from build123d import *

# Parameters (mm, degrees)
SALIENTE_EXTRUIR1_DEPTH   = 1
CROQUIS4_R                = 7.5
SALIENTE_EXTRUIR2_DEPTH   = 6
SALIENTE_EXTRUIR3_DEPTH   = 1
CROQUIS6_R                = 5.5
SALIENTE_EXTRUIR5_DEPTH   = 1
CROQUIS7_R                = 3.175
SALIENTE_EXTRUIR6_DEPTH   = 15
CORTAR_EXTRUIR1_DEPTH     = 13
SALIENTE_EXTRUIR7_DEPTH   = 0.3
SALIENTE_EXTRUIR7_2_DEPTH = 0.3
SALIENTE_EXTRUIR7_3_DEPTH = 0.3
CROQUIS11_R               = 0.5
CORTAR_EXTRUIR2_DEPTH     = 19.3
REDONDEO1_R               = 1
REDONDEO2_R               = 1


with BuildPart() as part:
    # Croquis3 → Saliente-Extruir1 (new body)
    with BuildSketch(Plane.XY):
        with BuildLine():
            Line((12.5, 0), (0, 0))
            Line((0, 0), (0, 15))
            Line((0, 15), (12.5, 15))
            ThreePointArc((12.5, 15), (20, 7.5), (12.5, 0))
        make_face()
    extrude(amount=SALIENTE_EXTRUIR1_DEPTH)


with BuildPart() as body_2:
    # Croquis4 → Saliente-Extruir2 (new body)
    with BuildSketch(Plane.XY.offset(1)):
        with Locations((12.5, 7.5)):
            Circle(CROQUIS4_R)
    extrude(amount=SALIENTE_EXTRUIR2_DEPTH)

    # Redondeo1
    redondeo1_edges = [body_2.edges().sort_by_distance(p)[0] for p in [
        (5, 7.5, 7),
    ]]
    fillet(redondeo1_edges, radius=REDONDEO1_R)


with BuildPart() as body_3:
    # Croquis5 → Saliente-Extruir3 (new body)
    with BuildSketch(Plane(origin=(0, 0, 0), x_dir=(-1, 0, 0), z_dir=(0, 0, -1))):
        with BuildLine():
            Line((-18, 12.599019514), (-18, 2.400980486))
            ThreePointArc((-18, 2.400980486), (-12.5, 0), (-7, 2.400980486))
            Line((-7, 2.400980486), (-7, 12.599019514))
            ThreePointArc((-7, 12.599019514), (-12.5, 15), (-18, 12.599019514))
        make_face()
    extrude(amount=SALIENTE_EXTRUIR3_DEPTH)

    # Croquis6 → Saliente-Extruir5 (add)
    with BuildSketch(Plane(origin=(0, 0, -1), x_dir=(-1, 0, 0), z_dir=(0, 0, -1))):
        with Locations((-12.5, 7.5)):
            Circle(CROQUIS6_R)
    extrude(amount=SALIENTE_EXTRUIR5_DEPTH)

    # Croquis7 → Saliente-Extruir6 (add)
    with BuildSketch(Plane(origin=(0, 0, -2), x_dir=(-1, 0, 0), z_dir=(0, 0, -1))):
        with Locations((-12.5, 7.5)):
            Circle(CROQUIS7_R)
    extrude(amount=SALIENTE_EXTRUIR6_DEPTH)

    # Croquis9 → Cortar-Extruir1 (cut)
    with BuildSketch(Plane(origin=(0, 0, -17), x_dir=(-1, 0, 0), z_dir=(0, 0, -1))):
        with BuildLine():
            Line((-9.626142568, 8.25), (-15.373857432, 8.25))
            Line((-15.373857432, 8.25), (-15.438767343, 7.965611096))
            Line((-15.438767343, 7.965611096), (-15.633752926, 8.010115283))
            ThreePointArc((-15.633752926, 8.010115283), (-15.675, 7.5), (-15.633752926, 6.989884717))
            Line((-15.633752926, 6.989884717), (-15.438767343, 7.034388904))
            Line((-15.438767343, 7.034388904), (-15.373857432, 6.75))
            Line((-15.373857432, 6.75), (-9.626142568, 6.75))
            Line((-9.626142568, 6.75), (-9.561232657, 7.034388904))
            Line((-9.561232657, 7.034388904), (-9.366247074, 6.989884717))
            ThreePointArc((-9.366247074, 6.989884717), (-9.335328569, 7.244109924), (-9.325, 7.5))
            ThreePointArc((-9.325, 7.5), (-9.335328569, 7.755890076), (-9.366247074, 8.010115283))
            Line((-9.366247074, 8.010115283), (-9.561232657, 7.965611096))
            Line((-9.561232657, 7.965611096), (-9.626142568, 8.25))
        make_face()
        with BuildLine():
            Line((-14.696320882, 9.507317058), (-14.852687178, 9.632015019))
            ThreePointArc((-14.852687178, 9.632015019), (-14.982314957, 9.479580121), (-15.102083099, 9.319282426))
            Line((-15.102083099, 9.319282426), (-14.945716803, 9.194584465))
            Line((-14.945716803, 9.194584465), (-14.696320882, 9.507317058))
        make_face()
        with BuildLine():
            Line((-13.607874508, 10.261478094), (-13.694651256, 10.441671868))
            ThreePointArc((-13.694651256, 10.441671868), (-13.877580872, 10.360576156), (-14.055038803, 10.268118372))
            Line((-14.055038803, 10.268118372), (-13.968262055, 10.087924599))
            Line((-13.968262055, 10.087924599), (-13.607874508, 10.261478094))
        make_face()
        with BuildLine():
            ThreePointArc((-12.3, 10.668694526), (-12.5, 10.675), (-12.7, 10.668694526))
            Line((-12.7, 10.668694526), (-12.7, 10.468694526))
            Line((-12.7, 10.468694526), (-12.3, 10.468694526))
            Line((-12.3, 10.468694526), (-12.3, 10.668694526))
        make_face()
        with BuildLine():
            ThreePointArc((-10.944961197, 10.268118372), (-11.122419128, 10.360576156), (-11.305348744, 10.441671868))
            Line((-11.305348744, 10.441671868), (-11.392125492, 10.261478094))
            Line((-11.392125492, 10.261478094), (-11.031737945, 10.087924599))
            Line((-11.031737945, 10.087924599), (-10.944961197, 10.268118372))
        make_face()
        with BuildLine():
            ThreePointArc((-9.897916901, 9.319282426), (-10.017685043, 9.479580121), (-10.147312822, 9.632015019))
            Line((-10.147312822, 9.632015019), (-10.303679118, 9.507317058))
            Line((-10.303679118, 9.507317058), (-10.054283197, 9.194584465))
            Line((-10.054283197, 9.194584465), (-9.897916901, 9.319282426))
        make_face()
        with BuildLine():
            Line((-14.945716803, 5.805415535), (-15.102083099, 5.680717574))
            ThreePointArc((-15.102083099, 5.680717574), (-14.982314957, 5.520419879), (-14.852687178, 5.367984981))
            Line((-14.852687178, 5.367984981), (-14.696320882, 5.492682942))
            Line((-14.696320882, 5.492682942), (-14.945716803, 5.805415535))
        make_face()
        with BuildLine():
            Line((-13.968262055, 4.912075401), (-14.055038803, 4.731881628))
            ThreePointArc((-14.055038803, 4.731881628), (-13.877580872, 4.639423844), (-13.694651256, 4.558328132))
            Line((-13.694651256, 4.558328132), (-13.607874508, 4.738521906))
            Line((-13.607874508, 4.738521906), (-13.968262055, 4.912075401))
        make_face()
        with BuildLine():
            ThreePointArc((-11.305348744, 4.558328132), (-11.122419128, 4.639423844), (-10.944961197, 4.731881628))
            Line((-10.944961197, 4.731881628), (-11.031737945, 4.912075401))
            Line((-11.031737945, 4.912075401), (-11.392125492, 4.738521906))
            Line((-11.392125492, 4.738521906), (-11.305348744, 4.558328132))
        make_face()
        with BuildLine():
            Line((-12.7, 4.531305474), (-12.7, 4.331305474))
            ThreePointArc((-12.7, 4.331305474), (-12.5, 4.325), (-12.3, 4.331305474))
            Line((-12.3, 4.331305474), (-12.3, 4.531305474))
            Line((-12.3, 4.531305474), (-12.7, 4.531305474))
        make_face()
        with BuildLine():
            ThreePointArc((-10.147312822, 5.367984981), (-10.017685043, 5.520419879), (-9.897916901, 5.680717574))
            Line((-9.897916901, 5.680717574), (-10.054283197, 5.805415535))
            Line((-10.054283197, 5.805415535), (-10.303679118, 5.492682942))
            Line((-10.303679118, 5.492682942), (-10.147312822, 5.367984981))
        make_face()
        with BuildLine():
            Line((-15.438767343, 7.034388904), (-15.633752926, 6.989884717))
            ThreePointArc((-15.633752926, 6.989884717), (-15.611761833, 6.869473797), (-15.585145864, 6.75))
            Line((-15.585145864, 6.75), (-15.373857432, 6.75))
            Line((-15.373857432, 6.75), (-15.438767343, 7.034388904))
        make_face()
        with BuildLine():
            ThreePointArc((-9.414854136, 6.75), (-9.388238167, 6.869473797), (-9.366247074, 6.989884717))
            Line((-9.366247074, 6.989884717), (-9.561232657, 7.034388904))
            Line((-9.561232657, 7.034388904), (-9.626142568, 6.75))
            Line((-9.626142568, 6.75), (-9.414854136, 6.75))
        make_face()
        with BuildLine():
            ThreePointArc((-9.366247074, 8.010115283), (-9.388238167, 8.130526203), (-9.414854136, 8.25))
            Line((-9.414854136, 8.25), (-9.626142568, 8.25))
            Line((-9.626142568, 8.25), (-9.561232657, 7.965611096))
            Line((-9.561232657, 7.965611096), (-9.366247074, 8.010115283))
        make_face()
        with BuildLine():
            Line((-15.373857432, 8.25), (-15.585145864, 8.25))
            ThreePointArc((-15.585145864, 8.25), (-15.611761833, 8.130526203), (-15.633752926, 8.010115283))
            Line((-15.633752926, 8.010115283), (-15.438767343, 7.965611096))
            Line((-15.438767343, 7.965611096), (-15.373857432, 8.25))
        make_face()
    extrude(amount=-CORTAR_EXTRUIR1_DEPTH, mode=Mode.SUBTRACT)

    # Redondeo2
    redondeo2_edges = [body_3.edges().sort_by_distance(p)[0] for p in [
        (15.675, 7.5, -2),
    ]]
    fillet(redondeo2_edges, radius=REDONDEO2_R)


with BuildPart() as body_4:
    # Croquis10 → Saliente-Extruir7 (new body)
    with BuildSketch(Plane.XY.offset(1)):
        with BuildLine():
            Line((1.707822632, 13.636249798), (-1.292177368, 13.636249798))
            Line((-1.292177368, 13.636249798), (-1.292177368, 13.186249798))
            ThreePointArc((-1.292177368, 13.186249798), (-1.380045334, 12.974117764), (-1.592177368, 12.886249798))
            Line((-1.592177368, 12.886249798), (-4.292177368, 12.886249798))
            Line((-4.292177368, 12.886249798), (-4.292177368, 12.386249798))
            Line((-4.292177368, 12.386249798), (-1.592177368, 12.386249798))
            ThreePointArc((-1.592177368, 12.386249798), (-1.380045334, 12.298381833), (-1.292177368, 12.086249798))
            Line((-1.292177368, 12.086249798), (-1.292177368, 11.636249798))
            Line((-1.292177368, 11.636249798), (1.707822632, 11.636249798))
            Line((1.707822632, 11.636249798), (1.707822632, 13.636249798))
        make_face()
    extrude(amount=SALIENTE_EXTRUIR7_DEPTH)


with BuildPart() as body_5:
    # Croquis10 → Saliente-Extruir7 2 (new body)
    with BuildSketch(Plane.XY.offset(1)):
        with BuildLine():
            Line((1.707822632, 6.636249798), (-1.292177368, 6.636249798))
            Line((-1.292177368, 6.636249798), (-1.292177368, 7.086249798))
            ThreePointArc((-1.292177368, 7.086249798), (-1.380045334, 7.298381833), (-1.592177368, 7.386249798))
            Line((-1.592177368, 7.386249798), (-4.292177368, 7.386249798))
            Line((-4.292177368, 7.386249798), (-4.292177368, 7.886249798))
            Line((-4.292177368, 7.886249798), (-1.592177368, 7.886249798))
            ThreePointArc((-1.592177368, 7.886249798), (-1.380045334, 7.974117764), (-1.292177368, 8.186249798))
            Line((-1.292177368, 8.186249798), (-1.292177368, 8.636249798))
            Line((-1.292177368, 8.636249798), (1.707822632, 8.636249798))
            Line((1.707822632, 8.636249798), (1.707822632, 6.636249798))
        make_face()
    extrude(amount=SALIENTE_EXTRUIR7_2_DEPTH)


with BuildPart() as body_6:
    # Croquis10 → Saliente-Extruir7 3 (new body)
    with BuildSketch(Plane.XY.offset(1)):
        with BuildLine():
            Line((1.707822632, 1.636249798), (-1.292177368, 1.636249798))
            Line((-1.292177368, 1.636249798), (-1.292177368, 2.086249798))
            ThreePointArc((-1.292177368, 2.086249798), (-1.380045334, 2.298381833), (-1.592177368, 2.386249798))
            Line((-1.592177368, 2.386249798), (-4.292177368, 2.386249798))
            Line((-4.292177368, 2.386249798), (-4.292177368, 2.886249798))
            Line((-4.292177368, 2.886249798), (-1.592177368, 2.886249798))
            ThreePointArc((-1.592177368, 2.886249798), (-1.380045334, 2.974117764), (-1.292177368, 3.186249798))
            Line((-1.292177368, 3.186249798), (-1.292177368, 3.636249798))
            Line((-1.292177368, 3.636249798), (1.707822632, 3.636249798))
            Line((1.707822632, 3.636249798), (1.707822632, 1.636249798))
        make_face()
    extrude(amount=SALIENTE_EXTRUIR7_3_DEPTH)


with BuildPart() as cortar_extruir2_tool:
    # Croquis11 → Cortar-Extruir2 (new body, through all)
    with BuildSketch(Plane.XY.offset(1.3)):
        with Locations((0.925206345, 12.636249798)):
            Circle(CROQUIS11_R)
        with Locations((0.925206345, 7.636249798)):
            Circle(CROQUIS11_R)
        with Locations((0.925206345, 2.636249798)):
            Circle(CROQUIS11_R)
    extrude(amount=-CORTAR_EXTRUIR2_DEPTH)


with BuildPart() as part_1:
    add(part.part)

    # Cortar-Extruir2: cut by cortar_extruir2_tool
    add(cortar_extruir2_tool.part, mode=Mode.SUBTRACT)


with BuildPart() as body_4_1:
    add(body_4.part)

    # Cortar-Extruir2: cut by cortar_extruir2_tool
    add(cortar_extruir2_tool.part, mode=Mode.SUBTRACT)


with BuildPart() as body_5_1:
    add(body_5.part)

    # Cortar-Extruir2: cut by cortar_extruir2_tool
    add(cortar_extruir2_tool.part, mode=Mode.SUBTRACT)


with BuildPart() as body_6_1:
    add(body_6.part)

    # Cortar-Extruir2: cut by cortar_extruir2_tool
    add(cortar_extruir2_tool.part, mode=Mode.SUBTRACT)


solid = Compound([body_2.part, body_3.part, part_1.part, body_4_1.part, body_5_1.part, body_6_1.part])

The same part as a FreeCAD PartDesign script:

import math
import FreeCAD as App
import Part
import Sketcher

V = App.Vector


def edges_at(feature, points):
    """Names of the edges that pass closest to the given points."""
    edges = feature.Shape.Edges
    near = lambda p: min(range(len(edges)), key=lambda i: edges[i].distToShape(Part.Vertex(*p))[0])
    return sorted({f"Edge{near(p) + 1}" for p in points})

doc = App.newDocument("Part")
body = doc.addObject("PartDesign::Body", "Body")

sketch1 = body.newObject("Sketcher::SketchObject", "Sketch")
sketch1.AttachmentSupport = (doc.getObject("XY_Plane"), [""])
sketch1.MapMode = "FlatFace"
sketch1.addGeometry([
    Part.LineSegment(V(0, 0, 0), V(12.5, 0, 0)),
    Part.ArcOfCircle(Part.Circle(V(12.5, 7.5, 0), V(0, 0, 1), 7.5), math.radians(-90), math.radians(90)),
    Part.LineSegment(V(12.5, 15, 0), V(0, 15, 0)),
    Part.LineSegment(V(0, 15, 0), V(0, 0, 0)),
], False)
sketch1.addConstraint([
    Sketcher.Constraint("Tangent", 0, 2, 1, 1),
    Sketcher.Constraint("Tangent", 1, 2, 2, 1),
    Sketcher.Constraint("Coincident", 2, 2, 3, 1),
    Sketcher.Constraint("Coincident", 3, 2, 0, 1),
    Sketcher.Constraint("Horizontal", 0),
    Sketcher.Constraint("Horizontal", 2),
    Sketcher.Constraint("Vertical", 3),
    Sketcher.Constraint("Coincident", 3, 2, -1, 1),
    Sketcher.Constraint("Radius", 1, 7.5),
    Sketcher.Constraint("DistanceX", 0, 1, 0, 2, 12.5),
])
pad1 = body.newObject("PartDesign::Pad", "Pad")
pad1.Profile = sketch1
pad1.Length = 1
body2 = doc.addObject("PartDesign::Body", "Body001")

sketch2 = body2.newObject("Sketcher::SketchObject", "Sketch001")
sketch2.AttachmentSupport = (doc.getObject("XY_Plane001"), [""])
sketch2.MapMode = "FlatFace"
sketch2.AttachmentOffset = App.Placement(V(0, 0, 1), App.Rotation())
sketch2.addGeometry(Part.Circle(V(12.5, 7.5, 0), V(0, 0, 1), 7.5), False)
sketch2.addConstraint([
    Sketcher.Constraint("Diameter", 0, 15.0),
    Sketcher.Constraint("DistanceX", -1, 1, 0, 3, 12.5),
    Sketcher.Constraint("DistanceY", -1, 1, 0, 3, 7.5),
])
pad2 = body2.newObject("PartDesign::Pad", "Pad001")
pad2.Profile = sketch2
pad2.Length = 6
doc.recompute()

fillet = body2.newObject("PartDesign::Fillet", "Fillet")
fillet.Base = (pad2, edges_at(pad2, [(5, 7.5, 7)]))
fillet.Radius = 1
body3 = doc.addObject("PartDesign::Body", "Body002")

sketch3 = body3.newObject("Sketcher::SketchObject", "Sketch002")
sketch3.AttachmentSupport = (doc.getObject("XY_Plane002"), [""])
sketch3.MapMode = "FlatFace"
sketch3.addGeometry([
    Part.LineSegment(V(18, 12.59902, 0), V(18, 2.40098, 0)),
    Part.ArcOfCircle(Part.Circle(V(12.5, 7.5, 0), V(0, 0, 1), 7.5), math.radians(-137.166572), math.radians(-42.833428)),
    Part.LineSegment(V(7, 2.40098, 0), V(7, 12.59902, 0)),
    Part.ArcOfCircle(Part.Circle(V(12.5, 7.5, 0), V(0, 0, 1), 7.5), math.radians(42.833428), math.radians(137.166572)),
], False)
sketch3.addConstraint([
    Sketcher.Constraint("Coincident", 0, 2, 1, 2),
    Sketcher.Constraint("Coincident", 1, 1, 2, 1),
    Sketcher.Constraint("Coincident", 2, 2, 3, 2),
    Sketcher.Constraint("Coincident", 3, 1, 0, 1),
    Sketcher.Constraint("Vertical", 0),
    Sketcher.Constraint("Vertical", 2),
    Sketcher.Constraint("Coincident", 3, 3, 1, 3),
    Sketcher.Constraint("Equal", 1, 3),
    Sketcher.Constraint("Horizontal", 0, 2, 1, 1),
    Sketcher.Constraint("Radius", 1, 7.5),
    Sketcher.Constraint("DistanceX", -1, 1, 0, 2, 18.0),
    Sketcher.Constraint("DistanceX", -1, 1, 1, 1, 7.0),
    Sketcher.Constraint("DistanceY", -1, 1, 1, 3, 7.5),
])
pad3 = body3.newObject("PartDesign::Pad", "Pad002")
pad3.Profile = sketch3
pad3.Length = 1
pad3.Reversed = True

sketch4 = body3.newObject("Sketcher::SketchObject", "Sketch003")
sketch4.AttachmentSupport = (doc.getObject("XY_Plane002"), [""])
sketch4.MapMode = "FlatFace"
sketch4.AttachmentOffset = App.Placement(V(0, 0, -1), App.Rotation())
sketch4.addGeometry(Part.Circle(V(12.5, 7.5, 0), V(0, 0, 1), 5.5), False)
sketch4.addConstraint([
    Sketcher.Constraint("Diameter", 0, 11.0),
    Sketcher.Constraint("DistanceX", -1, 1, 0, 3, 12.5),
    Sketcher.Constraint("DistanceY", -1, 1, 0, 3, 7.5),
])
pad4 = body3.newObject("PartDesign::Pad", "Pad003")
pad4.Profile = sketch4
pad4.Length = 1
pad4.Reversed = True

sketch5 = body3.newObject("Sketcher::SketchObject", "Sketch004")
sketch5.AttachmentSupport = (doc.getObject("XY_Plane002"), [""])
sketch5.MapMode = "FlatFace"
sketch5.AttachmentOffset = App.Placement(V(0, 0, -2), App.Rotation())
sketch5.addGeometry(Part.Circle(V(12.5, 7.5, 0), V(0, 0, 1), 3.175), False)
sketch5.addConstraint([
    Sketcher.Constraint("Diameter", 0, 6.35),
    Sketcher.Constraint("DistanceX", -1, 1, 0, 3, 12.5),
    Sketcher.Constraint("DistanceY", -1, 1, 0, 3, 7.5),
])
pad5 = body3.newObject("PartDesign::Pad", "Pad004")
pad5.Profile = sketch5
pad5.Length = 15
pad5.Reversed = True

sketch6 = body3.newObject("Sketcher::SketchObject", "Sketch005")
sketch6.AttachmentSupport = (doc.getObject("XY_Plane002"), [""])
sketch6.MapMode = "FlatFace"
sketch6.AttachmentOffset = App.Placement(V(0, 0, -17), App.Rotation())
sketch6.addGeometry([
    Part.ArcOfCircle(Part.Circle(V(12.5, 7.5, 0), V(0, 0, 1), 3.175), math.radians(-9.245569), math.radians(9.245569)),
    Part.ArcOfCircle(Part.Circle(V(12.499999, 7.5, 0), V(0, 0, 1), 3.175001), math.radians(-13.663576), math.radians(-9.245569)),
    Part.LineSegment(V(15.585146, 6.75, 0), V(9.414854, 6.75, 0)),
    Part.ArcOfCircle(Part.Circle(V(12.500001, 7.5, 0), V(0, 0, 1), 3.175001), math.radians(-170.754431), math.radians(-166.336424)),
    Part.ArcOfCircle(Part.Circle(V(12.5, 7.5, 0), V(0, 0, 1), 3.175), math.radians(-180), math.radians(-170.754432)),
    Part.ArcOfCircle(Part.Circle(V(12.5, 7.5, 0), V(0, 0, 1), 3.175), math.radians(170.754432), math.radians(180)),
    Part.ArcOfCircle(Part.Circle(V(12.500001, 7.5, 0), V(0, 0, 1), 3.175001), math.radians(166.336424), math.radians(170.754431)),
    Part.LineSegment(V(9.414854, 8.25, 0), V(15.585146, 8.25, 0)),
    Part.ArcOfCircle(Part.Circle(V(12.499999, 7.5, 0), V(0, 0, 1), 3.175001), math.radians(9.245569), math.radians(13.663576)),
    Part.LineSegment(V(14.696321, 9.507317, 0), V(14.852687, 9.632015, 0)),
    Part.ArcOfCircle(Part.Circle(V(12.5, 7.5, 0), V(0, 0, 1), 3.175), math.radians(34.959854), math.radians(42.183003)),
    Part.LineSegment(V(15.102083, 9.319282, 0), V(14.945717, 9.194584, 0)),
    Part.LineSegment(V(14.945717, 9.194584, 0), V(14.696321, 9.507317, 0)),
    Part.LineSegment(V(13.607875, 10.261478, 0), V(13.694651, 10.441672, 0)),
    Part.ArcOfCircle(Part.Circle(V(12.5, 7.5, 0), V(0, 0, 1), 3.175), math.radians(60.67414), math.radians(67.897289)),
    Part.LineSegment(V(14.055039, 10.268118, 0), V(13.968262, 10.087925, 0)),
    Part.LineSegment(V(13.968262, 10.087925, 0), V(13.607875, 10.261478, 0)),
    Part.ArcOfCircle(Part.Circle(V(12.5, 7.5, 0), V(0, 0, 1), 3.175), math.radians(86.388426), math.radians(93.611574)),
    Part.LineSegment(V(12.7, 10.668695, 0), V(12.7, 10.468695, 0)),
    Part.LineSegment(V(12.7, 10.468695, 0), V(12.3, 10.468695, 0)),
    Part.LineSegment(V(12.3, 10.468695, 0), V(12.3, 10.668695, 0)),
    Part.ArcOfCircle(Part.Circle(V(12.5, 7.5, 0), V(0, 0, 1), 3.175), math.radians(112.102711), math.radians(119.32586)),
    Part.LineSegment(V(11.305349, 10.441672, 0), V(11.392125, 10.261478, 0)),
    Part.LineSegment(V(11.392125, 10.261478, 0), V(11.031738, 10.087925, 0)),
    Part.LineSegment(V(11.031738, 10.087925, 0), V(10.944961, 10.268118, 0)),
    Part.ArcOfCircle(Part.Circle(V(12.5, 7.5, 0), V(0, 0, 1), 3.175), math.radians(137.816997), math.radians(145.040146)),
    Part.LineSegment(V(10.147313, 9.632015, 0), V(10.303679, 9.507317, 0)),
    Part.LineSegment(V(10.303679, 9.507317, 0), V(10.054283, 9.194584, 0)),
    Part.LineSegment(V(10.054283, 9.194584, 0), V(9.897917, 9.319282, 0)),
    Part.LineSegment(V(14.945717, 5.805416, 0), V(15.102083, 5.680718, 0)),
    Part.ArcOfCircle(Part.Circle(V(12.5, 7.5, 0), V(0, 0, 1), 3.175), math.radians(-42.183003), math.radians(-34.959854)),
    Part.LineSegment(V(14.852687, 5.367985, 0), V(14.696321, 5.492683, 0)),
    Part.LineSegment(V(14.696321, 5.492683, 0), V(14.945717, 5.805416, 0)),
    Part.LineSegment(V(13.968262, 4.912075, 0), V(14.055039, 4.731882, 0)),
    Part.ArcOfCircle(Part.Circle(V(12.5, 7.5, 0), V(0, 0, 1), 3.175), math.radians(-67.897289), math.radians(-60.67414)),
    Part.LineSegment(V(13.694651, 4.558328, 0), V(13.607875, 4.738522, 0)),
    Part.LineSegment(V(13.607875, 4.738522, 0), V(13.968262, 4.912075, 0)),
    Part.ArcOfCircle(Part.Circle(V(12.5, 7.5, 0), V(0, 0, 1), 3.175), math.radians(-119.32586), math.radians(-112.102711)),
    Part.LineSegment(V(10.944961, 4.731882, 0), V(11.031738, 4.912075, 0)),
    Part.LineSegment(V(11.031738, 4.912075, 0), V(11.392125, 4.738522, 0)),
    Part.LineSegment(V(11.392125, 4.738522, 0), V(11.305349, 4.558328, 0)),
    Part.LineSegment(V(12.7, 4.531305, 0), V(12.7, 4.331305, 0)),
    Part.ArcOfCircle(Part.Circle(V(12.5, 7.5, 0), V(0, 0, 1), 3.175), math.radians(-93.611574), math.radians(-86.388426)),
    Part.LineSegment(V(12.3, 4.331305, 0), V(12.3, 4.531305, 0)),
    Part.LineSegment(V(12.3, 4.531305, 0), V(12.7, 4.531305, 0)),
    Part.ArcOfCircle(Part.Circle(V(12.5, 7.5, 0), V(0, 0, 1), 3.175), math.radians(-145.040146), math.radians(-137.816997)),
    Part.LineSegment(V(9.897917, 5.680718, 0), V(10.054283, 5.805416, 0)),
    Part.LineSegment(V(10.054283, 5.805416, 0), V(10.303679, 5.492683, 0)),
    Part.LineSegment(V(10.303679, 5.492683, 0), V(10.147313, 5.367985, 0)),
], False)
sketch6.addConstraint([
    Sketcher.Constraint("Tangent", 0, 1, 1, 2),
    Sketcher.Constraint("Coincident", 1, 1, 2, 1),
    Sketcher.Constraint("Coincident", 2, 2, 3, 2),
    Sketcher.Constraint("Tangent", 3, 1, 4, 2),
    Sketcher.Constraint("Tangent", 4, 1, 5, 2),
    Sketcher.Constraint("Tangent", 5, 1, 6, 2),
    Sketcher.Constraint("Coincident", 6, 1, 7, 1),
    Sketcher.Constraint("Coincident", 7, 2, 8, 2),
    Sketcher.Constraint("Tangent", 8, 1, 0, 2),
    Sketcher.Constraint("Coincident", 9, 2, 10, 2),
    Sketcher.Constraint("Coincident", 10, 1, 11, 1),
    Sketcher.Constraint("Coincident", 11, 2, 12, 1),
    Sketcher.Constraint("Coincident", 12, 2, 9, 1),
    Sketcher.Constraint("Coincident", 13, 2, 14, 2),
    Sketcher.Constraint("Coincident", 14, 1, 15, 1),
    Sketcher.Constraint("Coincident", 15, 2, 16, 1),
    Sketcher.Constraint("Coincident", 16, 2, 13, 1),
    Sketcher.Constraint("Coincident", 17, 1, 18, 1),
    Sketcher.Constraint("Coincident", 18, 2, 19, 1),
    Sketcher.Constraint("Coincident", 19, 2, 20, 1),
    Sketcher.Constraint("Coincident", 20, 2, 17, 2),
    Sketcher.Constraint("Coincident", 21, 1, 22, 1),
    Sketcher.Constraint("Coincident", 22, 2, 23, 1),
    Sketcher.Constraint("Coincident", 23, 2, 24, 1),
    Sketcher.Constraint("Coincident", 24, 2, 21, 2),
    Sketcher.Constraint("Coincident", 25, 1, 26, 1),
    Sketcher.Constraint("Coincident", 26, 2, 27, 1),
    Sketcher.Constraint("Coincident", 27, 2, 28, 1),
    Sketcher.Constraint("Coincident", 28, 2, 25, 2),
    Sketcher.Constraint("Coincident", 29, 2, 30, 2),
    Sketcher.Constraint("Coincident", 30, 1, 31, 1),
    Sketcher.Constraint("Coincident", 31, 2, 32, 1),
    Sketcher.Constraint("Coincident", 32, 2, 29, 1),
    Sketcher.Constraint("Coincident", 33, 2, 34, 2),
    Sketcher.Constraint("Coincident", 34, 1, 35, 1),
    Sketcher.Constraint("Coincident", 35, 2, 36, 1),
    Sketcher.Constraint("Coincident", 36, 2, 33, 1),
    Sketcher.Constraint("Coincident", 37, 1, 38, 1),
    Sketcher.Constraint("Coincident", 38, 2, 39, 1),
    Sketcher.Constraint("Coincident", 39, 2, 40, 1),
    Sketcher.Constraint("Coincident", 40, 2, 37, 2),
    Sketcher.Constraint("Coincident", 41, 2, 42, 2),
    Sketcher.Constraint("Coincident", 42, 1, 43, 1),
    Sketcher.Constraint("Coincident", 43, 2, 44, 1),
    Sketcher.Constraint("Coincident", 44, 2, 41, 1),
    Sketcher.Constraint("Coincident", 45, 1, 46, 1),
    Sketcher.Constraint("Coincident", 46, 2, 47, 1),
    Sketcher.Constraint("Coincident", 47, 2, 48, 1),
    Sketcher.Constraint("Coincident", 48, 2, 45, 2),
    Sketcher.Constraint("Horizontal", 2),
    Sketcher.Constraint("Horizontal", 7),
    Sketcher.Constraint("Vertical", 18),
    Sketcher.Constraint("Horizontal", 19),
    Sketcher.Constraint("Vertical", 20),
    Sketcher.Constraint("Vertical", 41),
    Sketcher.Constraint("Vertical", 43),
    Sketcher.Constraint("Horizontal", 44),
    Sketcher.Constraint("Coincident", 3, 3, 0, 3),
    Sketcher.Constraint("Coincident", 5, 3, 0, 3),
    Sketcher.Constraint("Coincident", 10, 3, 0, 3),
    Sketcher.Constraint("Coincident", 14, 3, 0, 3),
    Sketcher.Constraint("Coincident", 17, 3, 0, 3),
    Sketcher.Constraint("Coincident", 21, 3, 0, 3),
    Sketcher.Constraint("Coincident", 25, 3, 0, 3),
    Sketcher.Constraint("Coincident", 30, 3, 0, 3),
    Sketcher.Constraint("Coincident", 34, 3, 0, 3),
    Sketcher.Constraint("Coincident", 37, 3, 0, 3),
    Sketcher.Constraint("Coincident", 42, 3, 0, 3),
    Sketcher.Constraint("Coincident", 45, 3, 0, 3),
    Sketcher.Constraint("Equal", 0, 1),
    Sketcher.Constraint("Equal", 1, 3),
    Sketcher.Constraint("Equal", 5, 6),
    Sketcher.Constraint("Equal", 6, 8),
    Sketcher.Constraint("Equal", 8, 10),
    Sketcher.Constraint("Equal", 10, 14),
    Sketcher.Constraint("Equal", 14, 17),
    Sketcher.Constraint("Equal", 17, 21),
    Sketcher.Constraint("Equal", 21, 25),
    Sketcher.Constraint("Equal", 25, 30),
    Sketcher.Constraint("Equal", 30, 34),
    Sketcher.Constraint("Equal", 34, 37),
    Sketcher.Constraint("Equal", 37, 42),
    Sketcher.Constraint("Equal", 42, 45),
    Sketcher.Constraint("Parallel", 9, 11),
    Sketcher.Constraint("Perpendicular", 11, 12),
    Sketcher.Constraint("Parallel", 13, 15),
    Sketcher.Constraint("Perpendicular", 15, 16),
    Sketcher.Constraint("Perpendicular", 22, 23),
    Sketcher.Constraint("Perpendicular", 23, 24),
    Sketcher.Constraint("Perpendicular", 26, 27),
    Sketcher.Constraint("Perpendicular", 27, 28),
    Sketcher.Constraint("Parallel", 28, 29),
    Sketcher.Constraint("Parallel", 29, 31),
    Sketcher.Constraint("Perpendicular", 31, 32),
    Sketcher.Constraint("Parallel", 24, 33),
    Sketcher.Constraint("Parallel", 33, 35),
    Sketcher.Constraint("Perpendicular", 35, 36),
    Sketcher.Constraint("Perpendicular", 16, 38),
    Sketcher.Constraint("Perpendicular", 38, 39),
    Sketcher.Constraint("Perpendicular", 39, 40),
    Sketcher.Constraint("Perpendicular", 12, 46),
    Sketcher.Constraint("Perpendicular", 46, 47),
    Sketcher.Constraint("Perpendicular", 47, 48),
    Sketcher.Constraint("Horizontal", 0, 1, 3, 1),
    Sketcher.Constraint("Horizontal", 45, 3, 4, 1),
    Sketcher.Constraint("Horizontal", 5, 1, 8, 1),
    Sketcher.Constraint("Horizontal", 17, 1, 20, 2),
    Sketcher.Constraint("Horizontal", 13, 2, 21, 1),
    Sketcher.Constraint("Horizontal", 16, 2, 22, 2),
    Sketcher.Constraint("Horizontal", 15, 2, 23, 2),
    Sketcher.Constraint("Horizontal", 14, 1, 24, 2),
    Sketcher.Constraint("Horizontal", 9, 2, 25, 1),
    Sketcher.Constraint("Horizontal", 12, 2, 26, 2),
    Sketcher.Constraint("Horizontal", 11, 2, 27, 2),
    Sketcher.Constraint("Horizontal", 10, 1, 28, 2),
    Sketcher.Constraint("Horizontal", 33, 2, 37, 1),
    Sketcher.Constraint("Horizontal", 36, 2, 38, 2),
    Sketcher.Constraint("Horizontal", 35, 2, 39, 2),
    Sketcher.Constraint("Horizontal", 41, 2, 42, 1),
    Sketcher.Constraint("Horizontal", 29, 2, 45, 1),
    Sketcher.Constraint("Horizontal", 32, 2, 46, 2),
    Sketcher.Constraint("Horizontal", 31, 2, 47, 2),
    Sketcher.Constraint("Vertical", 3, 1, 5, 1),
    Sketcher.Constraint("Vertical", 2, 2, 6, 1),
    Sketcher.Constraint("Vertical", 10, 1, 29, 2),
    Sketcher.Constraint("Vertical", 9, 2, 30, 1),
    Sketcher.Constraint("Vertical", 12, 2, 31, 2),
    Sketcher.Constraint("Vertical", 14, 1, 33, 2),
    Sketcher.Constraint("Vertical", 13, 2, 34, 1),
    Sketcher.Constraint("Vertical", 16, 2, 35, 2),
    Sketcher.Constraint("Vertical", 18, 2, 41, 2),
    Sketcher.Constraint("Equal", 20, 41),
    Sketcher.Constraint("Equal", 9, 11),
    Sketcher.Constraint("Equal", 11, 13),
    Sketcher.Constraint("Equal", 13, 15),
    Sketcher.Constraint("Equal", 12, 16),
    Sketcher.Constraint("DistanceX", 19, 2, 19, 1, 0.4),
    Sketcher.Constraint("DistanceY", 18, 2, 18, 1, 0.2),
    Sketcher.Constraint("Radius", 0, 3.175),
    Sketcher.Constraint("Distance", 9, 0.2),
    Sketcher.Constraint("Distance", 12, 0.4),
    Sketcher.Constraint("DistanceX", -1, 1, 0, 3, 12.5),
    Sketcher.Constraint("DistanceY", -1, 1, 0, 3, 7.5),
    Sketcher.Constraint("DistanceY", -1, 1, 1, 1, 6.75),
    Sketcher.Constraint("DistanceX", -1, 1, 12, 2, 14.696321),
    Sketcher.Constraint("DistanceX", -1, 1, 13, 2, 13.694651),
    Sketcher.Constraint("DistanceX", -1, 1, 0, 1, 15.633753),
])
pocket1 = body3.newObject("PartDesign::Pocket", "Pocket")
pocket1.Profile = sketch6
pocket1.Length = 13
pocket1.Reversed = True
doc.recompute()

fillet2 = body3.newObject("PartDesign::Fillet", "Fillet001")
fillet2.Base = (pocket1, edges_at(pocket1, [(15.675, 7.5, -2)]))
fillet2.Radius = 1
body4 = doc.addObject("PartDesign::Body", "Body003")

sketch7 = body4.newObject("Sketcher::SketchObject", "Sketch006")
sketch7.AttachmentSupport = (doc.getObject("XY_Plane003"), [""])
sketch7.MapMode = "FlatFace"
sketch7.AttachmentOffset = App.Placement(V(0, 0, 1), App.Rotation())
sketch7.addGeometry([
    Part.LineSegment(V(1.707823, 13.63625, 0), V(-1.292177, 13.63625, 0)),
    Part.LineSegment(V(-1.292177, 13.63625, 0), V(-1.292177, 13.18625, 0)),
    Part.ArcOfCircle(Part.Circle(V(-1.592177, 13.18625, 0), V(0, 0, 1), 0.3), math.radians(-90), math.radians(0)),
    Part.LineSegment(V(-1.592177, 12.88625, 0), V(-4.292177, 12.88625, 0)),
    Part.LineSegment(V(-4.292177, 12.88625, 0), V(-4.292177, 12.38625, 0)),
    Part.LineSegment(V(-4.292177, 12.38625, 0), V(-1.592177, 12.38625, 0)),
    Part.ArcOfCircle(Part.Circle(V(-1.592177, 12.08625, 0), V(0, 0, 1), 0.3), math.radians(0), math.radians(90)),
    Part.LineSegment(V(-1.292177, 12.08625, 0), V(-1.292177, 11.63625, 0)),
    Part.LineSegment(V(-1.292177, 11.63625, 0), V(1.707823, 11.63625, 0)),
    Part.LineSegment(V(1.707823, 11.63625, 0), V(1.707823, 13.63625, 0)),
], False)
sketch7.addConstraint([
    Sketcher.Constraint("Coincident", 0, 2, 1, 1),
    Sketcher.Constraint("Tangent", 1, 2, 2, 2),
    Sketcher.Constraint("Tangent", 2, 1, 3, 1),
    Sketcher.Constraint("Coincident", 3, 2, 4, 1),
    Sketcher.Constraint("Coincident", 4, 2, 5, 1),
    Sketcher.Constraint("Tangent", 5, 2, 6, 2),
    Sketcher.Constraint("Tangent", 6, 1, 7, 1),
    Sketcher.Constraint("Coincident", 7, 2, 8, 1),
    Sketcher.Constraint("Coincident", 8, 2, 9, 1),
    Sketcher.Constraint("Coincident", 9, 2, 0, 1),
    Sketcher.Constraint("Horizontal", 0),
    Sketcher.Constraint("Vertical", 1),
    Sketcher.Constraint("Horizontal", 3),
    Sketcher.Constraint("Vertical", 4),
    Sketcher.Constraint("Horizontal", 5),
    Sketcher.Constraint("Vertical", 7),
    Sketcher.Constraint("Horizontal", 8),
    Sketcher.Constraint("Vertical", 9),
    Sketcher.Constraint("Equal", 2, 6),
    Sketcher.Constraint("Vertical", 2, 3, 6, 3),
    Sketcher.Constraint("Equal", 1, 7),
    Sketcher.Constraint("Radius", 2, 0.3),
    Sketcher.Constraint("DistanceX", 0, 2, 0, 1, 3.0),
    Sketcher.Constraint("DistanceY", 9, 1, 9, 2, 2.0),
    Sketcher.Constraint("DistanceX", 3, 2, 3, 1, 2.7),
    Sketcher.Constraint("DistanceY", 4, 2, 4, 1, 0.5),
    Sketcher.Constraint("DistanceY", -1, 1, 2, 3, 13.18625),
    Sketcher.Constraint("DistanceX", 2, 3, -1, 1, 1.592177),
])
pad6 = body4.newObject("PartDesign::Pad", "Pad005")
pad6.Profile = sketch7
pad6.Length = 0.3
body5 = doc.addObject("PartDesign::Body", "Body004")

sketch8 = body5.newObject("Sketcher::SketchObject", "Sketch007")
sketch8.AttachmentSupport = (doc.getObject("XY_Plane004"), [""])
sketch8.MapMode = "FlatFace"
sketch8.AttachmentOffset = App.Placement(V(0, 0, 1), App.Rotation())
sketch8.addGeometry([
    Part.LineSegment(V(-1.292177, 6.63625, 0), V(1.707823, 6.63625, 0)),
    Part.LineSegment(V(1.707823, 6.63625, 0), V(1.707823, 8.63625, 0)),
    Part.LineSegment(V(1.707823, 8.63625, 0), V(-1.292177, 8.63625, 0)),
    Part.LineSegment(V(-1.292177, 8.63625, 0), V(-1.292177, 8.18625, 0)),
    Part.ArcOfCircle(Part.Circle(V(-1.592177, 8.18625, 0), V(0, 0, 1), 0.3), math.radians(-90), math.radians(0)),
    Part.LineSegment(V(-1.592177, 7.88625, 0), V(-4.292177, 7.88625, 0)),
    Part.LineSegment(V(-4.292177, 7.88625, 0), V(-4.292177, 7.38625, 0)),
    Part.LineSegment(V(-4.292177, 7.38625, 0), V(-1.592177, 7.38625, 0)),
    Part.ArcOfCircle(Part.Circle(V(-1.592177, 7.08625, 0), V(0, 0, 1), 0.3), math.radians(0), math.radians(90)),
    Part.LineSegment(V(-1.292177, 7.08625, 0), V(-1.292177, 6.63625, 0)),
], False)
sketch8.addConstraint([
    Sketcher.Constraint("Coincident", 0, 2, 1, 1),
    Sketcher.Constraint("Coincident", 1, 2, 2, 1),
    Sketcher.Constraint("Coincident", 2, 2, 3, 1),
    Sketcher.Constraint("Tangent", 3, 2, 4, 2),
    Sketcher.Constraint("Tangent", 4, 1, 5, 1),
    Sketcher.Constraint("Coincident", 5, 2, 6, 1),
    Sketcher.Constraint("Coincident", 6, 2, 7, 1),
    Sketcher.Constraint("Tangent", 7, 2, 8, 2),
    Sketcher.Constraint("Tangent", 8, 1, 9, 1),
    Sketcher.Constraint("Coincident", 9, 2, 0, 1),
    Sketcher.Constraint("Horizontal", 0),
    Sketcher.Constraint("Vertical", 1),
    Sketcher.Constraint("Horizontal", 2),
    Sketcher.Constraint("Vertical", 3),
    Sketcher.Constraint("Horizontal", 5),
    Sketcher.Constraint("Vertical", 6),
    Sketcher.Constraint("Horizontal", 7),
    Sketcher.Constraint("Vertical", 9),
    Sketcher.Constraint("Equal", 4, 8),
    Sketcher.Constraint("Vertical", 4, 3, 8, 3),
    Sketcher.Constraint("Equal", 3, 9),
    Sketcher.Constraint("Radius", 4, 0.3),
    Sketcher.Constraint("DistanceX", 0, 1, 0, 2, 3.0),
    Sketcher.Constraint("DistanceY", 1, 1, 1, 2, 2.0),
    Sketcher.Constraint("DistanceX", 5, 2, 5, 1, 2.7),
    Sketcher.Constraint("DistanceY", 6, 2, 6, 1, 0.5),
    Sketcher.Constraint("DistanceY", -1, 1, 4, 3, 8.18625),
    Sketcher.Constraint("DistanceX", 4, 3, -1, 1, 1.592177),
])
pad7 = body5.newObject("PartDesign::Pad", "Pad006")
pad7.Profile = sketch8
pad7.Length = 0.3
body6 = doc.addObject("PartDesign::Body", "Body005")

sketch9 = body6.newObject("Sketcher::SketchObject", "Sketch008")
sketch9.AttachmentSupport = (doc.getObject("XY_Plane005"), [""])
sketch9.MapMode = "FlatFace"
sketch9.AttachmentOffset = App.Placement(V(0, 0, 1), App.Rotation())
sketch9.addGeometry([
    Part.LineSegment(V(-1.292177, 1.63625, 0), V(1.707823, 1.63625, 0)),
    Part.LineSegment(V(1.707823, 1.63625, 0), V(1.707823, 3.63625, 0)),
    Part.LineSegment(V(1.707823, 3.63625, 0), V(-1.292177, 3.63625, 0)),
    Part.LineSegment(V(-1.292177, 3.63625, 0), V(-1.292177, 3.18625, 0)),
    Part.ArcOfCircle(Part.Circle(V(-1.592177, 3.18625, 0), V(0, 0, 1), 0.3), math.radians(-90), math.radians(0)),
    Part.LineSegment(V(-1.592177, 2.88625, 0), V(-4.292177, 2.88625, 0)),
    Part.LineSegment(V(-4.292177, 2.88625, 0), V(-4.292177, 2.38625, 0)),
    Part.LineSegment(V(-4.292177, 2.38625, 0), V(-1.592177, 2.38625, 0)),
    Part.ArcOfCircle(Part.Circle(V(-1.592177, 2.08625, 0), V(0, 0, 1), 0.3), math.radians(0), math.radians(90)),
    Part.LineSegment(V(-1.292177, 2.08625, 0), V(-1.292177, 1.63625, 0)),
], False)
sketch9.addConstraint([
    Sketcher.Constraint("Coincident", 0, 2, 1, 1),
    Sketcher.Constraint("Coincident", 1, 2, 2, 1),
    Sketcher.Constraint("Coincident", 2, 2, 3, 1),
    Sketcher.Constraint("Tangent", 3, 2, 4, 2),
    Sketcher.Constraint("Tangent", 4, 1, 5, 1),
    Sketcher.Constraint("Coincident", 5, 2, 6, 1),
    Sketcher.Constraint("Coincident", 6, 2, 7, 1),
    Sketcher.Constraint("Tangent", 7, 2, 8, 2),
    Sketcher.Constraint("Tangent", 8, 1, 9, 1),
    Sketcher.Constraint("Coincident", 9, 2, 0, 1),
    Sketcher.Constraint("Horizontal", 0),
    Sketcher.Constraint("Vertical", 1),
    Sketcher.Constraint("Horizontal", 2),
    Sketcher.Constraint("Vertical", 3),
    Sketcher.Constraint("Horizontal", 5),
    Sketcher.Constraint("Vertical", 6),
    Sketcher.Constraint("Horizontal", 7),
    Sketcher.Constraint("Vertical", 9),
    Sketcher.Constraint("Equal", 4, 8),
    Sketcher.Constraint("Vertical", 4, 3, 8, 3),
    Sketcher.Constraint("Equal", 3, 9),
    Sketcher.Constraint("Radius", 4, 0.3),
    Sketcher.Constraint("DistanceX", 0, 1, 0, 2, 3.0),
    Sketcher.Constraint("DistanceY", 1, 1, 1, 2, 2.0),
    Sketcher.Constraint("DistanceX", 5, 2, 5, 1, 2.7),
    Sketcher.Constraint("DistanceY", 6, 2, 6, 1, 0.5),
    Sketcher.Constraint("DistanceY", -1, 1, 4, 3, 3.18625),
    Sketcher.Constraint("DistanceX", 4, 3, -1, 1, 1.592177),
])
pad8 = body6.newObject("PartDesign::Pad", "Pad007")
pad8.Profile = sketch9
pad8.Length = 0.3
body7 = doc.addObject("PartDesign::Body", "Body006")
body7.AllowCompound = True

sketch10 = body7.newObject("Sketcher::SketchObject", "Sketch009")
sketch10.AttachmentSupport = (doc.getObject("XY_Plane006"), [""])
sketch10.MapMode = "FlatFace"
sketch10.AttachmentOffset = App.Placement(V(0, 0, 1.3), App.Rotation())
sketch10.addGeometry([
    Part.Circle(V(0.925206, 12.63625, 0), V(0, 0, 1), 0.5),
    Part.Circle(V(0.925206, 7.63625, 0), V(0, 0, 1), 0.5),
    Part.Circle(V(0.925206, 2.63625, 0), V(0, 0, 1), 0.5),
], False)
sketch10.addConstraint([
    Sketcher.Constraint("Equal", 0, 1),
    Sketcher.Constraint("Equal", 1, 2),
    Sketcher.Constraint("Vertical", 0, 3, 1, 3),
    Sketcher.Constraint("Vertical", 1, 3, 2, 3),
    Sketcher.Constraint("Diameter", 0, 1.0),
    Sketcher.Constraint("DistanceY", 1, 3, 0, 3, 5.0),
    Sketcher.Constraint("DistanceY", 2, 3, 1, 3, 5.0),
    Sketcher.Constraint("DistanceY", -1, 1, 0, 3, 12.63625),
    Sketcher.Constraint("DistanceX", -1, 1, 0, 3, 0.925206),
])
pad9 = body7.newObject("PartDesign::Pad", "Pad008")
pad9.Profile = sketch10
pad9.Length = 19.3
pad9.Reversed = True
doc.recompute()

body8 = doc.addObject("PartDesign::Body", "Body007")
body8.BaseFeature = body7
boolean = body.newObject("PartDesign::Boolean", "Boolean")
boolean.Type = "Cut"
boolean.addObjects([body8])
doc.recompute()

body9 = doc.addObject("PartDesign::Body", "Body008")
body9.BaseFeature = body7
boolean2 = body4.newObject("PartDesign::Boolean", "Boolean001")
boolean2.Type = "Cut"
boolean2.addObjects([body9])
doc.recompute()

body10 = doc.addObject("PartDesign::Body", "Body009")
body10.BaseFeature = body7
boolean3 = body5.newObject("PartDesign::Boolean", "Boolean002")
boolean3.Type = "Cut"
boolean3.addObjects([body10])
doc.recompute()

boolean4 = body6.newObject("PartDesign::Boolean", "Boolean003")
boolean4.Type = "Cut"
boolean4.addObjects([body7])

doc.recompute()
